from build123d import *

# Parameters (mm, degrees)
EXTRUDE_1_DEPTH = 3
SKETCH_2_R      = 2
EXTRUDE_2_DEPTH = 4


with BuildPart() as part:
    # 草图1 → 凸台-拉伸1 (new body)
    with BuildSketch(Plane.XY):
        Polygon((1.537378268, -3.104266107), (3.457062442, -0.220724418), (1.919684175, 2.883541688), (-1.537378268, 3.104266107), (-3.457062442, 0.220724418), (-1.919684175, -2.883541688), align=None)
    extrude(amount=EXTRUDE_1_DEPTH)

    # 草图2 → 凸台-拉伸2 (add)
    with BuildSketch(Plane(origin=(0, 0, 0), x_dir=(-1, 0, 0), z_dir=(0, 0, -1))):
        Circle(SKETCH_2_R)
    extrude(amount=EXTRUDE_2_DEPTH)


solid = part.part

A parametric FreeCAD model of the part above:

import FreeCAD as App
import Part
import Sketcher

doc = App.newDocument("Part")
body = doc.addObject("PartDesign::Body", "Body")

# Sketch on XY plane
sketch1 = body.newObject("Sketcher::SketchObject", "Sketch")
sketch1.AttachmentSupport = (doc.getObject("XY_Plane"), [""])
sketch1.MapMode = "FlatFace"
sketch1.addGeometry([
    Part.LineSegment(App.Vector(1.537378, -3.104266, 0), App.Vector(3.457062, -0.220724, 0)),  # 0
    Part.LineSegment(App.Vector(3.457062, -0.220724, 0), App.Vector(1.919684, 2.883542, 0)),  # 1
    Part.LineSegment(App.Vector(1.919684, 2.883542, 0), App.Vector(-1.537378, 3.104266, 0)),  # 2
    Part.LineSegment(App.Vector(-1.537378, 3.104266, 0), App.Vector(-3.457062, 0.220724, 0)),  # 3
    Part.LineSegment(App.Vector(-3.457062, 0.220724, 0), App.Vector(-1.919684, -2.883542, 0)),  # 4
    Part.LineSegment(App.Vector(-1.919684, -2.883542, 0), App.Vector(1.537378, -3.104266, 0)),  # 5
], False)
sketch1.addConstraint([
    Sketcher.Constraint("Coincident", 0, 2, 1, 1),
    Sketcher.Constraint("Coincident", 1, 2, 2, 1),
    Sketcher.Constraint("Coincident", 2, 2, 3, 1),
    Sketcher.Constraint("Coincident", 3, 2, 4, 1),
    Sketcher.Constraint("Coincident", 4, 2, 5, 1),
    Sketcher.Constraint("Coincident", 5, 2, 0, 1),
    Sketcher.Constraint("Symmetric", 0, 2, 3, 2, -1, 1),
    Sketcher.Constraint("Symmetric", 1, 2, 4, 2, -1, 1),
    Sketcher.Constraint("Symmetric", 2, 2, 5, 2, -1, 1),
    Sketcher.Constraint("Equal", 0, 1),
    Sketcher.Constraint("Equal", 1, 2),
    Sketcher.Constraint("Distance", 0, 3.464102),
    Sketcher.Constraint("DistanceY", -1, 1, 1, 2, 2.883542),
    Sketcher.Constraint("DistanceX", 2, 2, -1, 1, 1.537378),
    Sketcher.Constraint("DistanceX", 1, 2, 0, 2, 1.537378),
])
pad1 = body.newObject("PartDesign::Pad", "Pad")
pad1.Profile = sketch1
pad1.Length = 3

# Sketch on XY plane
sketch2 = body.newObject("Sketcher::SketchObject", "Sketch001")
sketch2.AttachmentSupport = (doc.getObject("XY_Plane"), [""])
sketch2.MapMode = "FlatFace"
sketch2.addGeometry(Part.Circle(App.Vector(0, 0, 0), App.Vector(0, 0, 1), 2), False)
sketch2.addConstraint([
    Sketcher.Constraint("Coincident", 0, 3, -1, 1),
    Sketcher.Constraint("Diameter", 0, 4.0),
])
pad2 = body.newObject("PartDesign::Pad", "Pad001")
pad2.Profile = sketch2
pad2.Length = 4
pad2.Reversed = True

doc.recompute()
